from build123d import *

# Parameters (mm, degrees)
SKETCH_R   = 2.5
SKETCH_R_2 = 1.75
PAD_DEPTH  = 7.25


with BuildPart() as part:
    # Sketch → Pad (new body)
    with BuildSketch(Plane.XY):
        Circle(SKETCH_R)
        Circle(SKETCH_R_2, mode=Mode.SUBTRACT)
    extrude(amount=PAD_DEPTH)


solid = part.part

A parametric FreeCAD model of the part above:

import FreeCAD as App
import Part
import Sketcher

doc = App.newDocument("Part")
params = doc.addObject("Spreadsheet::Sheet", "Params")
for row, (alias, value) in enumerate([
    ("sketch1_diameter", "5 mm"),
    ("sketch1_diameter2", "3.5 mm"),
    ("pad1_length", "7.25 mm"),
], start=1):
    params.set(f"A{row}", alias)
    params.set(f"B{row}", "=" + value)
    params.setAlias(f"B{row}", alias)

body = doc.addObject("PartDesign::Body", "Body")

# Sketch on XY plane
sketch1 = body.newObject("Sketcher::SketchObject", "Sketch")
sketch1.AttachmentSupport = (doc.getObject("XY_Plane"), [""])
sketch1.MapMode = "FlatFace"
sketch1.addGeometry(Part.Circle(App.Vector(0, 0, 0), App.Vector(0, 0, 1), 2.5), False)
sketch1.addGeometry(Part.Circle(App.Vector(0, 0, 0), App.Vector(0, 0, 1), 1.8), False)
sketch1.addConstraint(Sketcher.Constraint("Coincident", 0, 3, -1, 1))
sketch1.addConstraint(Sketcher.Constraint("Coincident", 1, 3, -1, 1))
sketch1.addConstraint(Sketcher.Constraint("Diameter", 0, 5.0))
sketch1.addConstraint(Sketcher.Constraint("Diameter", 1, 3.5))
sketch1.setExpression("Constraints[2]", "Params.sketch1_diameter")
sketch1.setExpression("Constraints[3]", "Params.sketch1_diameter2")
pad1 = body.newObject("PartDesign::Pad", "Pad")
pad1.Profile = sketch1
pad1.setExpression("Length", "Params.pad1_length")

doc.recompute()
